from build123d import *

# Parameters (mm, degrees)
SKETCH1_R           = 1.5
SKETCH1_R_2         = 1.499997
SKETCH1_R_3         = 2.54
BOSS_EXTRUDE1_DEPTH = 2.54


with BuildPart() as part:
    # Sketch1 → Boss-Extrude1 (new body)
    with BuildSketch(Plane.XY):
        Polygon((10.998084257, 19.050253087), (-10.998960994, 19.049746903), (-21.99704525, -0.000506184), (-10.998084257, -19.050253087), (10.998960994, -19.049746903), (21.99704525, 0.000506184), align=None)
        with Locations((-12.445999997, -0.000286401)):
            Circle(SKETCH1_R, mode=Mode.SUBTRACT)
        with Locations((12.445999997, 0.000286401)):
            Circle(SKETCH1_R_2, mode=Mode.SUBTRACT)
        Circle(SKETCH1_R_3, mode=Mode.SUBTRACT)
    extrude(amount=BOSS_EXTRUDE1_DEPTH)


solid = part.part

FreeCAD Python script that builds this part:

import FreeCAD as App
import Part
import Sketcher
from FreeCAD import Vector
Q = App.Units.Quantity

doc = App.newDocument("Part")
params = doc.addObject("Spreadsheet::Sheet", "Params")
for row, (alias, value) in enumerate([
    ("sketch1_diameter", "0.2 in"),
    ("pad1_length", "0.1 in"),
], start=1):
    params.set(f"A{row}", alias)
    params.set(f"B{row}", "=" + value)
    params.setAlias(f"B{row}", alias)

body = doc.addObject("PartDesign::Body", "Body")

sketch1 = body.newObject("Sketcher::SketchObject", "Sketch")
sketch1.AttachmentSupport = (doc.getObject("XY_Plane"), [""])
sketch1.MapMode = "FlatFace"
sketch1.addGeometry([
    Part.LineSegment(Vector(10.998084, 19.050253, 0), Vector(-10.998961, 19.049747, 0)),
    Part.LineSegment(Vector(-10.998961, 19.049747, 0), Vector(-21.997045, -0.000506, 0)),
    Part.LineSegment(Vector(-21.997045, -0.000506, 0), Vector(-10.998084, -19.050253, 0)),
    Part.LineSegment(Vector(-10.998084, -19.050253, 0), Vector(10.998961, -19.049747, 0)),
    Part.LineSegment(Vector(10.998961, -19.049747, 0), Vector(21.997045, 0.000506, 0)),
    Part.LineSegment(Vector(21.997045, 0.000506, 0), Vector(10.998084, 19.050253, 0)),
    Part.Circle(Vector(-12.446, -0.000286, 0), Vector(0, 0, 1), 1.5),
    Part.Circle(Vector(0, 0, 0), Vector(0, 0, 1), 2.54),
    Part.Circle(Vector(12.446, 0.000286, 0), Vector(0, 0, 1), 1.499997),
], False)
sketch1.addConstraint([
    Sketcher.Constraint("Coincident", 0, 2, 1, 1),
    Sketcher.Constraint("Coincident", 1, 2, 2, 1),
    Sketcher.Constraint("Coincident", 2, 2, 3, 1),
    Sketcher.Constraint("Coincident", 3, 2, 4, 1),
    Sketcher.Constraint("Coincident", 4, 2, 5, 1),
    Sketcher.Constraint("Coincident", 5, 2, 0, 1),
    Sketcher.Constraint("Coincident", 7, 3, -1, 1),
    Sketcher.Constraint("Symmetric", 6, 3, 8, 3, -1, 1),
    Sketcher.Constraint("Symmetric", 0, 2, 3, 2, -1, 1),
    Sketcher.Constraint("Symmetric", 1, 2, 4, 2, -1, 1),
    Sketcher.Constraint("Symmetric", 2, 2, 5, 2, -1, 1),
    Sketcher.Constraint("Equal", 0, 1),
    Sketcher.Constraint("Equal", 1, 2),
    Sketcher.Constraint("Diameter", 7, Q("0.2 in")),
    Sketcher.Constraint("DistanceY", 2, 2, 0, 2, Q("1.5 in")),
    Sketcher.Constraint("Diameter", 6, 3.0),
    Sketcher.Constraint("DistanceX", 6, 3, -1, 1, Q("0.49 in")),
    Sketcher.Constraint("Diameter", 8, 2.999994),
    Sketcher.Constraint("DistanceX", 0, 2, -1, 1, 10.998961),
    Sketcher.Constraint("DistanceY", 8, 3, 0, 2, 19.049461),
    Sketcher.Constraint("DistanceY", 1, 2, 6, 3, 0.00022),
    Sketcher.Constraint("DistanceX", 1, 2, 2, 2, 10.998961),
])
sketch1.setExpression("Constraints[13]", "Params.sketch1_diameter")
pad1 = body.newObject("PartDesign::Pad", "Pad")
pad1.Profile = sketch1
pad1.setExpression("Length", "Params.pad1_length")

doc.recompute()
